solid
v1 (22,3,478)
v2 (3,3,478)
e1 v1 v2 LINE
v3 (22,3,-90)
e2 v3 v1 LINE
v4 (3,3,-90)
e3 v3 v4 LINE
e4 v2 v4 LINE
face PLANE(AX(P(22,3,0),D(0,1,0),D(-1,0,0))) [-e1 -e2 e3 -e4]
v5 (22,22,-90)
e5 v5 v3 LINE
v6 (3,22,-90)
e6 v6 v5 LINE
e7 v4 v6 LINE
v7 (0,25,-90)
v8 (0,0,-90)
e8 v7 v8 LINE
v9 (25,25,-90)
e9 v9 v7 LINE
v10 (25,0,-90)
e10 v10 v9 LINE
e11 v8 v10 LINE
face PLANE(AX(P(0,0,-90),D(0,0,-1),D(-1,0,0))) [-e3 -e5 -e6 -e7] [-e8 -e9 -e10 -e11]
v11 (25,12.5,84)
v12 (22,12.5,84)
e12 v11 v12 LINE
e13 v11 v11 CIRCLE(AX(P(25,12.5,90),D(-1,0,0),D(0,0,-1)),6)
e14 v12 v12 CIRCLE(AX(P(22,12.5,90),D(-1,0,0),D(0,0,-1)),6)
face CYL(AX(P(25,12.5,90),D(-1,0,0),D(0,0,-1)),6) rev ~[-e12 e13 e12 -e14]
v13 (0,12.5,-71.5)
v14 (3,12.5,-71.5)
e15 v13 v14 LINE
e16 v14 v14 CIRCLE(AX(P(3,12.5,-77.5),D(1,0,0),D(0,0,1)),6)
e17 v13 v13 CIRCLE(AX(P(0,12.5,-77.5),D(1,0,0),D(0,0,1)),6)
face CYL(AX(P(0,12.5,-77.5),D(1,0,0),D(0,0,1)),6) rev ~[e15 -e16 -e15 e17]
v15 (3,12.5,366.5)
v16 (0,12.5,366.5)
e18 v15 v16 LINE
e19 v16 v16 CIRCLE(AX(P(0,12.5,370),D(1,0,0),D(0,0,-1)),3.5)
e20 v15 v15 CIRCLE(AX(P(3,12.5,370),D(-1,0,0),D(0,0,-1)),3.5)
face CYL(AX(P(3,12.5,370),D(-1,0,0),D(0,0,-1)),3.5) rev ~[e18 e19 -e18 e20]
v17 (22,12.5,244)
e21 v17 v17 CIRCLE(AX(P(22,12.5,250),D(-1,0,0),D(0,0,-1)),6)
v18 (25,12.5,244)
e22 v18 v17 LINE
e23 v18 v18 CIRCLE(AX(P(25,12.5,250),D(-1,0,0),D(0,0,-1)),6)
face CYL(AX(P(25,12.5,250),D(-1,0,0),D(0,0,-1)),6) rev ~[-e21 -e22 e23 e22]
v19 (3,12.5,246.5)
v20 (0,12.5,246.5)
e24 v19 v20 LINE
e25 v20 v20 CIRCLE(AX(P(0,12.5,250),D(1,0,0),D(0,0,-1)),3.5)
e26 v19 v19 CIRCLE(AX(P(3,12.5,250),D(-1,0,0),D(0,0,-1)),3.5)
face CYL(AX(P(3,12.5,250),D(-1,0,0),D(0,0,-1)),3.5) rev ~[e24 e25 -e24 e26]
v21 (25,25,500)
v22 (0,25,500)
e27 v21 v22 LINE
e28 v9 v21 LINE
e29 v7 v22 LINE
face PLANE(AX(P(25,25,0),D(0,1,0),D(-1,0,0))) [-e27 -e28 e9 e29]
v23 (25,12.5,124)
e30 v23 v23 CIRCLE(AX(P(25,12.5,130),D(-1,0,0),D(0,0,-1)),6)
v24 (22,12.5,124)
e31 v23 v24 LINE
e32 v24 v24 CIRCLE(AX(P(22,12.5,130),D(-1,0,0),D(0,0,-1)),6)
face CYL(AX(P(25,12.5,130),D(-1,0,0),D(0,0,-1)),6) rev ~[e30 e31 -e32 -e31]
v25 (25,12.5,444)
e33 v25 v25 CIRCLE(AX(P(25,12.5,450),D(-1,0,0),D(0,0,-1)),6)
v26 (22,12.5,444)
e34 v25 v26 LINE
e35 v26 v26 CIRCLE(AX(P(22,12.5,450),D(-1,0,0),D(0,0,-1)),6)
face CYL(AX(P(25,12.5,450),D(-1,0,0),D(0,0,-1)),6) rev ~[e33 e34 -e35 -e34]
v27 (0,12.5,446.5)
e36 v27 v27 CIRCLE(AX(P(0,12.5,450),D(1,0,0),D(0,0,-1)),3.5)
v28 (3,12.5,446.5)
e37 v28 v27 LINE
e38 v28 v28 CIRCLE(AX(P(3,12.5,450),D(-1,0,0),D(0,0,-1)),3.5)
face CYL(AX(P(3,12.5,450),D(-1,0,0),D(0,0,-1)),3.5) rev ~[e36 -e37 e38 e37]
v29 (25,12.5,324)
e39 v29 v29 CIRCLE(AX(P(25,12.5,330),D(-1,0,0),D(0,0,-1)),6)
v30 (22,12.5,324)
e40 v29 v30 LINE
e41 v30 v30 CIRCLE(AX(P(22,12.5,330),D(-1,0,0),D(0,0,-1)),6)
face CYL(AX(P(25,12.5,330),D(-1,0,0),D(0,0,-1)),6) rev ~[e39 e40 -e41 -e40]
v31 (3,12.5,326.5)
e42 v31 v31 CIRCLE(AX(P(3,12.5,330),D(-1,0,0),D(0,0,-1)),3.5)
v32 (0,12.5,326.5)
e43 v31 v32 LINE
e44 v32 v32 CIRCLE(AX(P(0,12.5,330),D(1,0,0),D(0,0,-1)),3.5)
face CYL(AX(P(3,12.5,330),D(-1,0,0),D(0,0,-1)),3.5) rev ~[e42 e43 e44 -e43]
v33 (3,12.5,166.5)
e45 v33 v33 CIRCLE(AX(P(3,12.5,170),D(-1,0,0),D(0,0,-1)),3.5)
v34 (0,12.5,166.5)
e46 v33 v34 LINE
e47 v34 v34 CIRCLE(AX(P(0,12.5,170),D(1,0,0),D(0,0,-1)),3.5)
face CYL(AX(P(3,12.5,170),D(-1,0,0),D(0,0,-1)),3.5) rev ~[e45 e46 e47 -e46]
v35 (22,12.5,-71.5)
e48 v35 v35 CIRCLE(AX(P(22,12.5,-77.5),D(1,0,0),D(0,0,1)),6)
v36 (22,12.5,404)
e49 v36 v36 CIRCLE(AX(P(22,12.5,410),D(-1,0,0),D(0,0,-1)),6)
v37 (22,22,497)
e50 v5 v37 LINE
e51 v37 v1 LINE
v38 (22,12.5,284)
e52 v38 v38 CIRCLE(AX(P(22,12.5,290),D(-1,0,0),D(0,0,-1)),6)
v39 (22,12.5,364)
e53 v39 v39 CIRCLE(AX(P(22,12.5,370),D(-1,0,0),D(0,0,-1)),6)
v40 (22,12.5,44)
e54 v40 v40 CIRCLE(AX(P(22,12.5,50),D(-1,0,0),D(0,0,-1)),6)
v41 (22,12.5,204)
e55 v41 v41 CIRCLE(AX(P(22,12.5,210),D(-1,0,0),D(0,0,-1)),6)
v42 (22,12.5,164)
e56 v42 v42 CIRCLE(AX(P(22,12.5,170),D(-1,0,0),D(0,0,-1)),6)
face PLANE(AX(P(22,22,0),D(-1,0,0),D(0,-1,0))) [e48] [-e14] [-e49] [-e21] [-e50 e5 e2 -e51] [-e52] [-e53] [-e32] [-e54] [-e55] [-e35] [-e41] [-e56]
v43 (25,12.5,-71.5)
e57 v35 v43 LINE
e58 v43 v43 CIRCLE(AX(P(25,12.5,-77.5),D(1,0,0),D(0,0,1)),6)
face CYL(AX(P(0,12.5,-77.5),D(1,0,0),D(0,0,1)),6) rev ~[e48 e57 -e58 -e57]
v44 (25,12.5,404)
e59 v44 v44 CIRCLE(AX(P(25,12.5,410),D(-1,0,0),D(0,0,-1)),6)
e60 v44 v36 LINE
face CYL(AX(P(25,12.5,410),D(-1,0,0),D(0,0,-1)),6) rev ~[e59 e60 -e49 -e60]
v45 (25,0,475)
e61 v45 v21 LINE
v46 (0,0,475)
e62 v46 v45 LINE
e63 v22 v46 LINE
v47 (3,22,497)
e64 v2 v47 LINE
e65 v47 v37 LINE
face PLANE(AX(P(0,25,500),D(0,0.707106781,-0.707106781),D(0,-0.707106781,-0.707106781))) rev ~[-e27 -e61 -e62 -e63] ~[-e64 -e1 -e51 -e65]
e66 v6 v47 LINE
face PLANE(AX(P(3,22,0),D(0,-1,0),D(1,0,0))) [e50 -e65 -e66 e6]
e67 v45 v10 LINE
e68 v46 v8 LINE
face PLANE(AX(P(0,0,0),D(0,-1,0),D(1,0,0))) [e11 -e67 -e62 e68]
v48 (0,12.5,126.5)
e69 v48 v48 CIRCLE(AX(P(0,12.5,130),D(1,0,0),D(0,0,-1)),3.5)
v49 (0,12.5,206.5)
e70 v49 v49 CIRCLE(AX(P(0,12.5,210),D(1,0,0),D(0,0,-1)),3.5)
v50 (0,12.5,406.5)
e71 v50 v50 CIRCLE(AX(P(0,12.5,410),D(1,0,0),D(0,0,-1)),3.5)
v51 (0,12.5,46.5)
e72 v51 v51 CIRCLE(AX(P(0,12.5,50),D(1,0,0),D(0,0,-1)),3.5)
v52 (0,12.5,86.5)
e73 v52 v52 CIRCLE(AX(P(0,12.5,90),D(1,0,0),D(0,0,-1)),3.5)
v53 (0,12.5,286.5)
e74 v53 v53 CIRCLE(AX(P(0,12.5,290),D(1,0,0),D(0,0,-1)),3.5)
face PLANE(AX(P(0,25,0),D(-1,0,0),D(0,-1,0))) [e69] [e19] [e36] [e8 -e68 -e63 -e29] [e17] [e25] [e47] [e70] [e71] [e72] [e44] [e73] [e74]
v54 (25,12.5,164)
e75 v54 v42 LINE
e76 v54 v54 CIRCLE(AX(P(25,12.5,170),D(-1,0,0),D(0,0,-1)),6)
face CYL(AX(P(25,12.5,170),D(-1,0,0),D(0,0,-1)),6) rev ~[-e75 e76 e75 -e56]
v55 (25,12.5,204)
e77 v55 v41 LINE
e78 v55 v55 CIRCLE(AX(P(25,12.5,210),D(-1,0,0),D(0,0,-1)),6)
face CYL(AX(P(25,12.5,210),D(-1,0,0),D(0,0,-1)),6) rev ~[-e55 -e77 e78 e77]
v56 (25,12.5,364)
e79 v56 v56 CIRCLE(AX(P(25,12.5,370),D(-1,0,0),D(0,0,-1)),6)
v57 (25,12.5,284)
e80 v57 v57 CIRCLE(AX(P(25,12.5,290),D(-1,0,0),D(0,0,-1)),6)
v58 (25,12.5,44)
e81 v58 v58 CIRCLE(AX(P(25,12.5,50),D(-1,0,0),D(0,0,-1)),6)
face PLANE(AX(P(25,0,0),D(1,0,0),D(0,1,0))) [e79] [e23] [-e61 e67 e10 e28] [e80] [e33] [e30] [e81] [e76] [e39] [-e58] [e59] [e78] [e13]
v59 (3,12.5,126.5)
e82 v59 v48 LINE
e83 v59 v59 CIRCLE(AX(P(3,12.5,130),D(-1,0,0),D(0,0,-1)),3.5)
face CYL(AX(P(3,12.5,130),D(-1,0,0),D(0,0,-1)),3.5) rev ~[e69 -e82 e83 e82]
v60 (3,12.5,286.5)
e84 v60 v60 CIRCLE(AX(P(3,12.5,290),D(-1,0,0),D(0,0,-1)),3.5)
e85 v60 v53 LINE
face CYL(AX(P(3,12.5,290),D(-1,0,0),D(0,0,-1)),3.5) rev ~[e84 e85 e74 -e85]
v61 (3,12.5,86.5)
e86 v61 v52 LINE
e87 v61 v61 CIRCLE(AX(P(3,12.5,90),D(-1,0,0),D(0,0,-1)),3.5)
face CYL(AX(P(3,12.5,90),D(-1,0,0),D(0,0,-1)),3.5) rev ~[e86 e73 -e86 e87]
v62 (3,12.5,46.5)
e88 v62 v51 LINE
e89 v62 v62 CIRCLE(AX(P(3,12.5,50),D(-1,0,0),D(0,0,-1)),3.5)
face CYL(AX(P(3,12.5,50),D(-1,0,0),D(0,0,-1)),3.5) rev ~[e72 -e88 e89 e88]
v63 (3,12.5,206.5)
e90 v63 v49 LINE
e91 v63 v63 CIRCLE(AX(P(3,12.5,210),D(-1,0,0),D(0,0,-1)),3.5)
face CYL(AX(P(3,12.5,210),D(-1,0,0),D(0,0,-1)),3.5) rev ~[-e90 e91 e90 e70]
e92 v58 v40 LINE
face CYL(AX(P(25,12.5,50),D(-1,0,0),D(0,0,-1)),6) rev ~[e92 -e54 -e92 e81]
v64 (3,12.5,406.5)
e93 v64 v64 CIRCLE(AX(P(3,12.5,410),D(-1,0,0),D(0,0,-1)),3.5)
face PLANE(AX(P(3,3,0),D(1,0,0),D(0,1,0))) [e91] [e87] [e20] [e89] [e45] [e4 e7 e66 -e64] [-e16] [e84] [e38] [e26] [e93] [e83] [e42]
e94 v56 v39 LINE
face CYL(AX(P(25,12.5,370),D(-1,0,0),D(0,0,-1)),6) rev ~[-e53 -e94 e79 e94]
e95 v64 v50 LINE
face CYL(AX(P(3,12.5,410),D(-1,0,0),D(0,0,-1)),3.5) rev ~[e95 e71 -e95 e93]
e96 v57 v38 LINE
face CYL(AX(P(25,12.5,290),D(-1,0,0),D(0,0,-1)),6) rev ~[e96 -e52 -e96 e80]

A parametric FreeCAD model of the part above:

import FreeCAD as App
import Part
import Sketcher

V = App.Vector


def add_polygon(sketch, points):
    """Adds a closed chain of lines whose ends are joined by coincident constraints."""
    first, n = sketch.GeometryCount, len(points)
    for a, b in zip(points, points[1:] + points[:1]):
        sketch.addGeometry(Part.LineSegment(App.Vector(*a, 0), App.Vector(*b, 0)), False)
    for i in range(n):
        sketch.addConstraint(Sketcher.Constraint("Coincident", first + i, 2, first + (i + 1) % n, 1))

doc = App.newDocument("Part")
body = doc.addObject("PartDesign::Body", "Body")

# Sketch on XY plane
sketch1 = body.newObject("Sketcher::SketchObject", "Sketch")
sketch1.AttachmentSupport = (doc.getObject("XY_Plane"), [""])
sketch1.MapMode = "FlatFace"
add_polygon(sketch1, [(0, 25), (0, 0), (25, 0), (25, 25)])  # lines 0-3
add_polygon(sketch1, [(22, 3), (3, 3), (3, 22), (22, 22)])  # lines 4-7
sketch1.addConstraint([
    Sketcher.Constraint("Vertical", 0),
    Sketcher.Constraint("Horizontal", 1),
    Sketcher.Constraint("Vertical", 2),
    Sketcher.Constraint("Horizontal", 3),
    Sketcher.Constraint("Horizontal", 4),
    Sketcher.Constraint("Vertical", 5),
    Sketcher.Constraint("Horizontal", 6),
    Sketcher.Constraint("Vertical", 7),
    Sketcher.Constraint("Coincident", 0, 2, -1, 1),
    Sketcher.Constraint("Equal", 3, 0),
    Sketcher.Constraint("Equal", 6, 5),
    Sketcher.Constraint("DistanceX", 1, 1, 1, 2, 25.0),
    Sketcher.Constraint("DistanceX", -1, 1, 4, 2, 3.0),
    Sketcher.Constraint("DistanceY", -1, 1, 4, 2, 3.0),
    Sketcher.Constraint("DistanceY", 5, 2, 3, 2, 3.0),
])
pad1 = body.newObject("PartDesign::Pad", "Pad")
pad1.Profile = sketch1
pad1.Length = 500

# Sketch on YZ plane
sketch2 = body.newObject("Sketcher::SketchObject", "Sketch001")
sketch2.AttachmentSupport = (doc.getObject("YZ_Plane"), [""])
sketch2.MapMode = "FlatFace"
sketch2.AttachmentOffset = App.Placement(V(0, 0, 25), App.Rotation())
sketch2.addGeometry([
    Part.Circle(V(12, 450, 0), V(0, 0, 1), 6),  # 0
    Part.Circle(V(12, 50, 0), V(0, 0, 1), 6),  # 1
    Part.Circle(V(12, 410, 0), V(0, 0, 1), 6),  # 2
    Part.Circle(V(12, 370, 0), V(0, 0, 1), 6),  # 3
    Part.Circle(V(12, 330, 0), V(0, 0, 1), 6),  # 4
    Part.Circle(V(12, 290, 0), V(0, 0, 1), 6),  # 5
    Part.Circle(V(12, 250, 0), V(0, 0, 1), 6),  # 6
    Part.Circle(V(12, 210, 0), V(0, 0, 1), 6),  # 7
    Part.Circle(V(12, 170, 0), V(0, 0, 1), 6),  # 8
    Part.Circle(V(12, 130, 0), V(0, 0, 1), 6),  # 9
    Part.Circle(V(12, 90, 0), V(0, 0, 1), 6),  # 10
], False)
sketch2.addConstraint([
    Sketcher.Constraint("Equal", 0, 1),
    Sketcher.Constraint("Equal", 1, 2),
    Sketcher.Constraint("Equal", 2, 3),
    Sketcher.Constraint("Equal", 3, 4),
    Sketcher.Constraint("Equal", 4, 5),
    Sketcher.Constraint("Equal", 5, 6),
    Sketcher.Constraint("Equal", 6, 7),
    Sketcher.Constraint("Equal", 7, 8),
    Sketcher.Constraint("Equal", 8, 9),
    Sketcher.Constraint("Equal", 9, 10),
    Sketcher.Constraint("Vertical", 0, 3, 1, 3),
    Sketcher.Constraint("Vertical", 1, 3, 2, 3),
    Sketcher.Constraint("Vertical", 2, 3, 3, 3),
    Sketcher.Constraint("Vertical", 3, 3, 4, 3),
    Sketcher.Constraint("Vertical", 4, 3, 5, 3),
    Sketcher.Constraint("Vertical", 5, 3, 6, 3),
    Sketcher.Constraint("Vertical", 6, 3, 7, 3),
    Sketcher.Constraint("Vertical", 7, 3, 8, 3),
    Sketcher.Constraint("Vertical", 8, 3, 9, 3),
    Sketcher.Constraint("Vertical", 9, 3, 10, 3),
    Sketcher.Constraint("Diameter", 0, 12.0),
    Sketcher.Constraint("DistanceY", -1, 1, 0, 3, 450.0),
    Sketcher.Constraint("DistanceY", -1, 1, 1, 3, 50.0),
    Sketcher.Constraint("DistanceY", -1, 1, 2, 3, 410.0),
    Sketcher.Constraint("DistanceY", -1, 1, 3, 3, 370.0),
    Sketcher.Constraint("DistanceY", -1, 1, 4, 3, 330.0),
    Sketcher.Constraint("DistanceY", -1, 1, 5, 3, 290.0),
    Sketcher.Constraint("DistanceY", -1, 1, 6, 3, 250.0),
    Sketcher.Constraint("DistanceY", -1, 1, 7, 3, 210.0),
    Sketcher.Constraint("DistanceY", -1, 1, 8, 3, 170.0),
    Sketcher.Constraint("DistanceY", -1, 1, 9, 3, 130.0),
    Sketcher.Constraint("DistanceY", -1, 1, 10, 3, 90.0),
    Sketcher.Constraint("DistanceX", -1, 1, 0, 3, 12.5),
])
doc.recompute()
hole = body.newObject("PartDesign::Hole", "Hole")
hole.Profile = sketch2
hole.ThreadType = "None"
hole.Diameter = 12
hole.DepthType = "Dimension"
hole.Depth = 8
hole.DrillPoint = "Angled"
hole.DrillPointAngle = 118

# Sketch on YZ plane
sketch3 = body.newObject("Sketcher::SketchObject", "Sketch002")
sketch3.AttachmentSupport = (doc.getObject("YZ_Plane"), [""])
sketch3.MapMode = "FlatFace"
sketch3.AttachmentOffset = App.Placement(V(0, 0, 3), App.Rotation())
sketch3.addGeometry([
    Part.Circle(V(12.5, 50, 0), V(0, 0, 1), 3.5),  # 0
    Part.Circle(V(12.5, 90, 0), V(0, 0, 1), 3.5),  # 1
    Part.Circle(V(12.5, 130, 0), V(0, 0, 1), 3.5),  # 2
    Part.Circle(V(12.5, 170, 0), V(0, 0, 1), 3.5),  # 3
    Part.Circle(V(12.5, 210, 0), V(0, 0, 1), 3.5),  # 4
    Part.Circle(V(12.5, 250, 0), V(0, 0, 1), 3.5),  # 5
    Part.Circle(V(12.5, 290, 0), V(0, 0, 1), 3.5),  # 6
    Part.Circle(V(12.5, 330, 0), V(0, 0, 1), 3.5),  # 7
    Part.Circle(V(12.5, 370, 0), V(0, 0, 1), 3.5),  # 8
    Part.Circle(V(12.5, 410, 0), V(0, 0, 1), 3.5),  # 9
    Part.Circle(V(12.5, 450, 0), V(0, 0, 1), 3.5),  # 10
], False)
sketch3.addConstraint([
    Sketcher.Constraint("Equal", 0, 1),
    Sketcher.Constraint("Equal", 1, 2),
    Sketcher.Constraint("Equal", 2, 3),
    Sketcher.Constraint("Equal", 3, 4),
    Sketcher.Constraint("Equal", 4, 5),
    Sketcher.Constraint("Equal", 5, 6),
    Sketcher.Constraint("Equal", 6, 7),
    Sketcher.Constraint("Equal", 7, 8),
    Sketcher.Constraint("Equal", 8, 9),
    Sketcher.Constraint("Equal", 9, 10),
    Sketcher.Constraint("Vertical", 0, 3, 1, 3),
    Sketcher.Constraint("Vertical", 1, 3, 2, 3),
    Sketcher.Constraint("Vertical", 2, 3, 3, 3),
    Sketcher.Constraint("Vertical", 3, 3, 4, 3),
    Sketcher.Constraint("Vertical", 4, 3, 5, 3),
    Sketcher.Constraint("Vertical", 5, 3, 6, 3),
    Sketcher.Constraint("Vertical", 6, 3, 7, 3),
    Sketcher.Constraint("Vertical", 7, 3, 8, 3),
    Sketcher.Constraint("Vertical", 8, 3, 9, 3),
    Sketcher.Constraint("Vertical", 9, 3, 10, 3),
    Sketcher.Constraint("Diameter", 0, 7.0),
    Sketcher.Constraint("DistanceY", -1, 1, 0, 3, 50.0),
    Sketcher.Constraint("DistanceY", -1, 1, 1, 3, 90.0),
    Sketcher.Constraint("DistanceY", -1, 1, 2, 3, 130.0),
    Sketcher.Constraint("DistanceY", -1, 1, 3, 3, 170.0),
    Sketcher.Constraint("DistanceY", -1, 1, 4, 3, 210.0),
    Sketcher.Constraint("DistanceY", -1, 1, 5, 3, 250.0),
    Sketcher.Constraint("DistanceY", -1, 1, 6, 3, 290.0),
    Sketcher.Constraint("DistanceY", -1, 1, 7, 3, 330.0),
    Sketcher.Constraint("DistanceY", -1, 1, 8, 3, 370.0),
    Sketcher.Constraint("DistanceY", -1, 1, 9, 3, 410.0),
    Sketcher.Constraint("DistanceY", -1, 1, 10, 3, 450.0),
    Sketcher.Constraint("DistanceX", -1, 1, 0, 3, 12.5),
])
doc.recompute()
hole2 = body.newObject("PartDesign::Hole", "Hole001")
hole2.Profile = sketch3
hole2.ThreadType = "None"
hole2.Diameter = 7
hole2.DepthType = "Dimension"
hole2.Depth = 8
hole2.DrillPoint = "Angled"
hole2.DrillPointAngle = 118

# Sketch on XY plane
sketch4 = body.newObject("Sketcher::SketchObject", "Sketch003")
sketch4.AttachmentSupport = (doc.getObject("XY_Plane"), [""])
sketch4.MapMode = "FlatFace"
add_polygon(sketch4, [(25, 25), (25, 0), (0, 0), (0, 25)])  # lines 0-3
add_polygon(sketch4, [(3, 22), (3, 3), (22, 3), (22, 22)])  # lines 4-7
sketch4.addConstraint([
    Sketcher.Constraint("Vertical", 0),
    Sketcher.Constraint("Horizontal", 1),
    Sketcher.Constraint("Vertical", 2),
    Sketcher.Constraint("Horizontal", 3),
    Sketcher.Constraint("Vertical", 4),
    Sketcher.Constraint("Horizontal", 5),
    Sketcher.Constraint("Vertical", 6),
    Sketcher.Constraint("Horizontal", 7),
    Sketcher.Constraint("Coincident", 1, 2, -1, 1),
    Sketcher.Constraint("Equal", 3, 0),
    Sketcher.Constraint("Equal", 7, 4),
    Sketcher.Constraint("DistanceX", 1, 2, 1, 1, 25.0),
    Sketcher.Constraint("DistanceX", 5, 1, 5, 2, 19.0),
    Sketcher.Constraint("DistanceX", -1, 1, 4, 2, 3.0),
    Sketcher.Constraint("DistanceY", -1, 1, 4, 2, 3.0),
])
pad2 = body.newObject("PartDesign::Pad", "Pad001")
pad2.Profile = sketch4
pad2.Length = 90
pad2.Reversed = True

# Sketch on YZ plane
sketch5 = body.newObject("Sketcher::SketchObject", "Sketch004")
sketch5.AttachmentSupport = (doc.getObject("YZ_Plane"), [""])
sketch5.MapMode = "FlatFace"
sketch5.addGeometry(Part.Circle(V(12, -78, 0), V(0, 0, 1), 6), False)
sketch5.addConstraint([
    Sketcher.Constraint("Diameter", 0, 12.0),
    Sketcher.Constraint("DistanceX", -1, 1, 0, 3, 12.5),
    Sketcher.Constraint("DistanceY", 0, 3, -1, 1, 77.5),
])
doc.recompute()
hole3 = body.newObject("PartDesign::Hole", "Hole002")
hole3.Profile = sketch5
hole3.ThreadType = "None"
hole3.Diameter = 12
hole3.DepthType = "ThroughAll"
hole3.Reversed = True

# Sketch on YZ plane
sketch6 = body.newObject("Sketcher::SketchObject", "Sketch005")
sketch6.AttachmentSupport = (doc.getObject("YZ_Plane"), [""])
sketch6.MapMode = "FlatFace"
sketch6.addGeometry(Part.Circle(V(12.5, -77.5, 0), V(0, 0, 1), 6), False)  # 0
sketch6.addGeometry(Part.Circle(V(12.5, 410, 0), V(0, 0, 1), 3.5), False)  # 1
sketch6.addGeometry(Part.Circle(V(12.5, 330, 0), V(0, 0, 1), 3.5), False)  # 2
sketch6.addGeometry(Part.Circle(V(12.5, 250, 0), V(0, 0, 1), 3.5), False)  # 3
sketch6.addGeometry(Part.Circle(V(12.5, 170, 0), V(0, 0, 1), 3.5), False)  # 4
sketch6.addGeometry(Part.Circle(V(12.5, 90, 0), V(0, 0, 1), 3.5), False)  # 5
sketch6.addGeometry(Part.Circle(V(12.5, 50, 0), V(0, 0, 1), 3.5), False)  # 6
sketch6.addGeometry(Part.Circle(V(12.5, 130, 0), V(0, 0, 1), 3.5), False)  # 7
sketch6.addGeometry(Part.Circle(V(12.5, 210, 0), V(0, 0, 1), 3.5), False)  # 8
sketch6.addGeometry(Part.Circle(V(12.5, 290, 0), V(0, 0, 1), 3.5), False)  # 9
sketch6.addGeometry(Part.Circle(V(12.5, 370, 0), V(0, 0, 1), 3.5), False)  # 10
sketch6.addGeometry(Part.Circle(V(12.5, 450, 0), V(0, 0, 1), 3.5), False)  # 11
add_polygon(sketch6, [(25, 500), (0, 475), (0, 500)])  # lines 12-14
sketch6.addConstraint([
    Sketcher.Constraint("Vertical", 13),
    Sketcher.Constraint("Horizontal", 14),
    Sketcher.Constraint("Equal", 1, 2),
    Sketcher.Constraint("Equal", 2, 3),
    Sketcher.Constraint("Equal", 3, 4),
    Sketcher.Constraint("Equal", 4, 5),
    Sketcher.Constraint("Equal", 5, 6),
    Sketcher.Constraint("Equal", 6, 7),
    Sketcher.Constraint("Equal", 7, 8),
    Sketcher.Constraint("Equal", 8, 9),
    Sketcher.Constraint("Equal", 9, 10),
    Sketcher.Constraint("Equal", 10, 11),
    Sketcher.Constraint("PointOnObject", 12, 2, -2),
    Sketcher.Constraint("Vertical", 0, 3, 1, 3),
    Sketcher.Constraint("Vertical", 1, 3, 2, 3),
    Sketcher.Constraint("Vertical", 2, 3, 3, 3),
    Sketcher.Constraint("Vertical", 3, 3, 4, 3),
    Sketcher.Constraint("Vertical", 4, 3, 5, 3),
    Sketcher.Constraint("Vertical", 5, 3, 6, 3),
    Sketcher.Constraint("Vertical", 6, 3, 7, 3),
    Sketcher.Constraint("Vertical", 7, 3, 8, 3),
    Sketcher.Constraint("Vertical", 8, 3, 9, 3),
    Sketcher.Constraint("Vertical", 9, 3, 10, 3),
    Sketcher.Constraint("Vertical", 10, 3, 11, 3),
    Sketcher.Constraint("Equal", 14, 13),
    Sketcher.Constraint("Diameter", 0, 12.0),
    Sketcher.Constraint("Diameter", 1, 7.0),
    Sketcher.Constraint("DistanceX", 14, 1, 14, 2, 25.0),
    Sketcher.Constraint("DistanceY", -1, 1, 1, 3, 410.0),
    Sketcher.Constraint("DistanceY", -1, 1, 2, 3, 330.0),
    Sketcher.Constraint("DistanceY", -1, 1, 3, 3, 250.0),
    Sketcher.Constraint("DistanceY", -1, 1, 4, 3, 170.0),
    Sketcher.Constraint("DistanceY", -1, 1, 5, 3, 90.0),
    Sketcher.Constraint("DistanceY", -1, 1, 6, 3, 50.0),
    Sketcher.Constraint("DistanceY", -1, 1, 7, 3, 130.0),
    Sketcher.Constraint("DistanceY", -1, 1, 8, 3, 210.0),
    Sketcher.Constraint("DistanceY", -1, 1, 9, 3, 290.0),
    Sketcher.Constraint("DistanceY", -1, 1, 10, 3, 370.0),
    Sketcher.Constraint("DistanceY", -1, 1, 11, 3, 450.0),
    Sketcher.Constraint("DistanceY", -1, 1, 12, 2, 475.0),
    Sketcher.Constraint("DistanceX", -1, 1, 0, 3, 12.5),
    Sketcher.Constraint("DistanceY", 0, 3, -1, 1, 77.5),
])
pocket1 = body.newObject("PartDesign::Pocket", "Pocket")
pocket1.Profile = sketch6
pocket1.Length = 109.75
pocket1.Reversed = True

doc.recompute()
